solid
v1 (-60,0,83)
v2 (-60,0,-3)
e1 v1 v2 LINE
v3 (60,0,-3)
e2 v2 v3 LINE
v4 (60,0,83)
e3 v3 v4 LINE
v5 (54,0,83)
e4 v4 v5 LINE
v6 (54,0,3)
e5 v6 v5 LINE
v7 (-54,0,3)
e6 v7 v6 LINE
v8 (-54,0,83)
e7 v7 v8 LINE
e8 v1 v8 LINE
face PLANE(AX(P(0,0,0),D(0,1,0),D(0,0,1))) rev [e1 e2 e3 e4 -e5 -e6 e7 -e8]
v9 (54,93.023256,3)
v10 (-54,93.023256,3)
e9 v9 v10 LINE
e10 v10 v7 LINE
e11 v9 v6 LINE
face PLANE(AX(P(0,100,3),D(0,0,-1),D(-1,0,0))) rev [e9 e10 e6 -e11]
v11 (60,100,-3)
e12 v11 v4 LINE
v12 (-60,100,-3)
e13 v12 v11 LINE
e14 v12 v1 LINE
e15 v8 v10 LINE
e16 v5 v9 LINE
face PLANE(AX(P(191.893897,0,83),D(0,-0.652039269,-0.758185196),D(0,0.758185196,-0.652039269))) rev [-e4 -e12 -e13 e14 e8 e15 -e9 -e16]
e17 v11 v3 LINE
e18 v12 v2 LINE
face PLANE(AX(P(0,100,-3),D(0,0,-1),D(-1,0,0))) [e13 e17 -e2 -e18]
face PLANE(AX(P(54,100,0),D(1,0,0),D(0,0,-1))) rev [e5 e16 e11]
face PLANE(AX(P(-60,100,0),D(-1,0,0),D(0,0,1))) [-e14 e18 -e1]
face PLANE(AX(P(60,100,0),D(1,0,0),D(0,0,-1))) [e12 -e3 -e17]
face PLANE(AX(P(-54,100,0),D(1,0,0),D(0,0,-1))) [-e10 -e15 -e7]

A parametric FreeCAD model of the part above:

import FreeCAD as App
import Part
import Sketcher

V = App.Vector


def add_polygon(sketch, points):
    """Adds a closed chain of lines whose ends are joined by coincident constraints."""
    first, n = sketch.GeometryCount, len(points)
    for a, b in zip(points, points[1:] + points[:1]):
        sketch.addGeometry(Part.LineSegment(App.Vector(*a, 0), App.Vector(*b, 0)), False)
    for i in range(n):
        sketch.addConstraint(Sketcher.Constraint("Coincident", first + i, 2, first + (i + 1) % n, 1))

doc = App.newDocument("Part")
params = doc.addObject("Spreadsheet::Sheet", "Params")
for row, (alias, value) in enumerate([
    ("sketch1_width", "6 mm"),
    ("sketch1_width2", "120 mm"),
    ("sketch1_height", "80 mm"),
    ("sketch1_height2", "86 mm"),
    ("pad1_length", "100 mm"),
    ("sketch2_width", "100 mm"),
    ("sketch2_height", "86 mm"),
    ("pocket1_length", "120 mm"),
], start=1):
    params.set(f"A{row}", alias)
    params.set(f"B{row}", "=" + value)
    params.setAlias(f"B{row}", alias)

body = doc.addObject("PartDesign::Body", "Body")

# Sketch on XZ plane
sketch1 = body.newObject("Sketcher::SketchObject", "Sketch")
sketch1.AttachmentSupport = (doc.getObject("XZ_Plane"), [""])
sketch1.MapMode = "FlatFace"
add_polygon(sketch1, [(54, 3), (54, 83), (60, 83), (60, -3), (-60, -3), (-60, 83), (-54, 83), (-54, 3)])  # lines 0-7
sketch1.addConstraint(Sketcher.Constraint("Vertical", 0))
sketch1.addConstraint(Sketcher.Constraint("Horizontal", 1))
sketch1.addConstraint(Sketcher.Constraint("Vertical", 2))
sketch1.addConstraint(Sketcher.Constraint("Horizontal", 3))
sketch1.addConstraint(Sketcher.Constraint("Vertical", 4))
sketch1.addConstraint(Sketcher.Constraint("Horizontal", 5))
sketch1.addConstraint(Sketcher.Constraint("Vertical", 6))
sketch1.addConstraint(Sketcher.Constraint("Horizontal", 7))
sketch1.addConstraint(Sketcher.Constraint("Symmetric", 1, 2, 4, 2, -2))
sketch1.addConstraint(Sketcher.Constraint("Equal", 1, 5))
sketch1.addConstraint(Sketcher.Constraint("DistanceX", 1, 1, 1, 2, 6.0))
sketch1.addConstraint(Sketcher.Constraint("DistanceX", 3, 2, 3, 1, 120.0))
sketch1.addConstraint(Sketcher.Constraint("DistanceY", 0, 1, 0, 2, 80.0))
sketch1.addConstraint(Sketcher.Constraint("DistanceY", 2, 2, 2, 1, 86.0))
sketch1.addConstraint(Sketcher.Constraint("DistanceY", -1, 1, 0, 2, 83.0))
sketch1.setExpression("Constraints[18]", "Params.sketch1_width")
sketch1.setExpression("Constraints[19]", "Params.sketch1_width2")
sketch1.setExpression("Constraints[20]", "Params.sketch1_height")
sketch1.setExpression("Constraints[21]", "Params.sketch1_height2")
pad1 = body.newObject("PartDesign::Pad", "Pad")
pad1.Profile = sketch1
pad1.setExpression("Length", "Params.pad1_length")
pad1.Reversed = True

# Sketch on YZ plane
sketch2 = body.newObject("Sketcher::SketchObject", "Sketch001")
sketch2.AttachmentSupport = (doc.getObject("YZ_Plane"), [""])
sketch2.MapMode = "FlatFace"
sketch2.AttachmentOffset = App.Placement(V(0, 0, -60), App.Rotation())
add_polygon(sketch2, [(100, -3), (0, 83), (100, 83)])  # lines 0-2
sketch2.addConstraint(Sketcher.Constraint("Horizontal", 1))
sketch2.addConstraint(Sketcher.Constraint("Vertical", 2))
sketch2.addConstraint(Sketcher.Constraint("PointOnObject", 0, 2, -2))
sketch2.addConstraint(Sketcher.Constraint("DistanceX", 1, 1, 1, 2, 100.0))
sketch2.addConstraint(Sketcher.Constraint("DistanceY", 2, 2, 2, 1, 86.0))
sketch2.addConstraint(Sketcher.Constraint("DistanceY", -1, 1, 0, 2, 83.0))
sketch2.setExpression("Constraints[6]", "Params.sketch2_width")
sketch2.setExpression("Constraints[7]", "Params.sketch2_height")
pocket1 = body.newObject("PartDesign::Pocket", "Pocket")
pocket1.Profile = sketch2
pocket1.setExpression("Length", "Params.pocket1_length")
pocket1.Reversed = True

doc.recompute()
